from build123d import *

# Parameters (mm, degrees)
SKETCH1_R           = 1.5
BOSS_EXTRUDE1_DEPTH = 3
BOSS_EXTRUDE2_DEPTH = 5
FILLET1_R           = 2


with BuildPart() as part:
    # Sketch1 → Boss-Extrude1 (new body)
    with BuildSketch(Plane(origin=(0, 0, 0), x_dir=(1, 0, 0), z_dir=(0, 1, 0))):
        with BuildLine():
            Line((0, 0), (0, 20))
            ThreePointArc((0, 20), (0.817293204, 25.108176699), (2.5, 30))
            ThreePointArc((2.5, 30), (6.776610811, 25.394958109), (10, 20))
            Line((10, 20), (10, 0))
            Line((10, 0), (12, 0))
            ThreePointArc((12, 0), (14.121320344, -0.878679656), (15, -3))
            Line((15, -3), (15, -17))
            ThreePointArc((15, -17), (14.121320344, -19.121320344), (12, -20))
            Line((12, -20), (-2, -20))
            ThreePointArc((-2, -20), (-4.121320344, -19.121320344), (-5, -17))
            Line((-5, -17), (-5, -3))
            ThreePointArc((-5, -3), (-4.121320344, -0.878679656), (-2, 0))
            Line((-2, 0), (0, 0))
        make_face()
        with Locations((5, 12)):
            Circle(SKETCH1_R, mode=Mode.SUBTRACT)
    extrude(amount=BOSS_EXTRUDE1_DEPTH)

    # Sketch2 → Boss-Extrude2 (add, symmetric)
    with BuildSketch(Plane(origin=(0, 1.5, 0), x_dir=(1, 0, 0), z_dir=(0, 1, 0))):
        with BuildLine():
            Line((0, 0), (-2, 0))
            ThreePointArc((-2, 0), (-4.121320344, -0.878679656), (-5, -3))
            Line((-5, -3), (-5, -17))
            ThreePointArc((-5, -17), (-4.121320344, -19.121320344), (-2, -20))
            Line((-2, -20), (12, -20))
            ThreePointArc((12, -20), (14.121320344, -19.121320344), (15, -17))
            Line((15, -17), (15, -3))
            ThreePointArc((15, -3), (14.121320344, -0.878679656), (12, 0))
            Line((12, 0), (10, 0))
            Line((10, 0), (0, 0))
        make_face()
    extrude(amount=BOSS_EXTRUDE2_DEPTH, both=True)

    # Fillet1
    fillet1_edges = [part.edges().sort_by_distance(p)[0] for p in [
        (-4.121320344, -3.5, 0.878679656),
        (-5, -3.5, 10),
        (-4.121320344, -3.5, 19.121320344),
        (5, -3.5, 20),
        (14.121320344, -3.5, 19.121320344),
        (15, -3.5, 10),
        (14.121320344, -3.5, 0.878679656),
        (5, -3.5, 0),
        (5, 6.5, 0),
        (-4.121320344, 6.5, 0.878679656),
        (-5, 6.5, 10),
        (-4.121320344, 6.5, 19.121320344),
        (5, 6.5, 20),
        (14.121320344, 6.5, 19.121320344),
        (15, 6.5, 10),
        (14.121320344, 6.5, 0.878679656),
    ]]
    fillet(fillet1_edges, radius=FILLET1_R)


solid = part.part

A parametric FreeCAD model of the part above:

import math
import FreeCAD as App
import Part
import Sketcher

V = App.Vector


def edges_at(feature, points):
    """Names of the edges that pass closest to the given points."""
    edges = feature.Shape.Edges
    near = lambda p: min(range(len(edges)), key=lambda i: edges[i].distToShape(Part.Vertex(*p))[0])
    return sorted({f"Edge{near(p) + 1}" for p in points})

doc = App.newDocument("Part")
body = doc.addObject("PartDesign::Body", "Body")

sketch1 = body.newObject("Sketcher::SketchObject", "Sketch")
sketch1.AttachmentSupport = (doc.getObject("XZ_Plane"), [""])
sketch1.MapMode = "FlatFace"
sketch1.addGeometry([
    Part.LineSegment(V(0, -20, 0), V(0, 0, 0)),
    Part.LineSegment(V(0, 0, 0), V(-2, 0, 0)),
    Part.ArcOfCircle(Part.Circle(V(-2, 3, 0), V(0, 0, 1), 3), math.radians(180), math.radians(270)),
    Part.LineSegment(V(-5, 3, 0), V(-5, 17, 0)),
    Part.ArcOfCircle(Part.Circle(V(-2, 17, 0), V(0, 0, 1), 3), math.radians(90), math.radians(180)),
    Part.LineSegment(V(-2, 20, 0), V(12, 20, 0)),
    Part.ArcOfCircle(Part.Circle(V(12, 17, 0), V(0, 0, 1), 3), math.radians(0), math.radians(90)),
    Part.LineSegment(V(15, 17, 0), V(15, 3, 0)),
    Part.ArcOfCircle(Part.Circle(V(12, 3, 0), V(0, 0, 1), 3), math.radians(-90), math.radians(0)),
    Part.LineSegment(V(12, 0, 0), V(10, 0, 0)),
    Part.LineSegment(V(10, 0, 0), V(10, -20, 0)),
    Part.ArcOfCircle(Part.Circle(V(-17.2, -7.4, 0), V(0, 0, 1), 30), math.radians(-49), math.radians(-25)),
    Part.ArcOfCircle(Part.Circle(V(29.9, -17.8, 0), V(0, 0, 1), 30), math.radians(-175.86), math.radians(-156.07)),
    Part.Circle(V(5, -12, 0), V(0, 0, 1), 1.5),
], False)
sketch1.addConstraint([
    Sketcher.Constraint("Coincident", 0, 2, 1, 1),
    Sketcher.Constraint("Tangent", 1, 2, 2, 2),
    Sketcher.Constraint("Tangent", 2, 1, 3, 1),
    Sketcher.Constraint("Tangent", 3, 2, 4, 2),
    Sketcher.Constraint("Tangent", 4, 1, 5, 1),
    Sketcher.Constraint("Tangent", 5, 2, 6, 2),
    Sketcher.Constraint("Tangent", 6, 1, 7, 1),
    Sketcher.Constraint("Tangent", 7, 2, 8, 2),
    Sketcher.Constraint("Tangent", 8, 1, 9, 1),
    Sketcher.Constraint("Coincident", 9, 2, 10, 1),
    Sketcher.Constraint("Coincident", 10, 2, 11, 2),
    Sketcher.Constraint("Coincident", 11, 1, 12, 2),
    Sketcher.Constraint("Coincident", 12, 1, 0, 1),
    Sketcher.Constraint("Vertical", 0),
    Sketcher.Constraint("Horizontal", 1),
    Sketcher.Constraint("Vertical", 3),
    Sketcher.Constraint("Horizontal", 5),
    Sketcher.Constraint("Vertical", 7),
    Sketcher.Constraint("Horizontal", 9),
    Sketcher.Constraint("Vertical", 10),
    Sketcher.Constraint("Coincident", 0, 2, -1, 1),
    Sketcher.Constraint("Equal", 2, 4),
    Sketcher.Constraint("Equal", 4, 6),
    Sketcher.Constraint("Equal", 6, 8),
    Sketcher.Constraint("Equal", 11, 12),
    Sketcher.Constraint("PointOnObject", 8, 1, -1),
    Sketcher.Constraint("Horizontal", 10, 2, 12, 1),
    Sketcher.Constraint("Equal", 1, 9),
    Sketcher.Constraint("Equal", 5, 3),
    Sketcher.Constraint("Diameter", 13, 3.0),
    Sketcher.Constraint("Radius", 2, 3.0),
    Sketcher.Constraint("Radius", 11, 30.0),
    Sketcher.Constraint("DistanceX", 1, 2, 1, 1, 2.0),
    Sketcher.Constraint("DistanceX", 5, 1, 5, 2, 14.0),
    Sketcher.Constraint("DistanceY", 0, 1, 0, 2, 20.0),
    Sketcher.Constraint("DistanceX", -1, 1, 13, 3, 5.0),
    Sketcher.Constraint("DistanceY", 13, 3, -1, 1, 12.0),
    Sketcher.Constraint("DistanceY", 11, 1, -1, 1, 30.0),
    Sketcher.Constraint("DistanceX", -1, 1, 11, 1, 2.5),
])
pad1 = body.newObject("PartDesign::Pad", "Pad")
pad1.Profile = sketch1
pad1.Length = 3
pad1.Reversed = True

sketch2 = body.newObject("Sketcher::SketchObject", "Sketch001")
sketch2.AttachmentSupport = (doc.getObject("XZ_Plane"), [""])
sketch2.MapMode = "FlatFace"
sketch2.AttachmentOffset = App.Placement(V(0, 0, -1.5), App.Rotation())
sketch2.addGeometry([
    Part.ArcOfCircle(Part.Circle(V(-2, 3, 0), V(0, 0, 1), 3), math.radians(180), math.radians(270)),
    Part.LineSegment(V(-5, 3, 0), V(-5, 17, 0)),
    Part.ArcOfCircle(Part.Circle(V(-2, 17, 0), V(0, 0, 1), 3), math.radians(90), math.radians(180)),
    Part.LineSegment(V(-2, 20, 0), V(12, 20, 0)),
    Part.ArcOfCircle(Part.Circle(V(12, 17, 0), V(0, 0, 1), 3), math.radians(0), math.radians(90)),
    Part.LineSegment(V(15, 17, 0), V(15, 3, 0)),
    Part.ArcOfCircle(Part.Circle(V(12, 3, 0), V(0, 0, 1), 3), math.radians(-90), math.radians(0)),
    Part.LineSegment(V(12, 0, 0), V(-2, 0, 0)),
], False)
sketch2.addConstraint([
    Sketcher.Constraint("Tangent", 0, 1, 1, 1),
    Sketcher.Constraint("Tangent", 1, 2, 2, 2),
    Sketcher.Constraint("Tangent", 2, 1, 3, 1),
    Sketcher.Constraint("Tangent", 3, 2, 4, 2),
    Sketcher.Constraint("Tangent", 4, 1, 5, 1),
    Sketcher.Constraint("Tangent", 5, 2, 6, 2),
    Sketcher.Constraint("Tangent", 6, 1, 7, 1),
    Sketcher.Constraint("Tangent", 7, 2, 0, 2),
    Sketcher.Constraint("Vertical", 1),
    Sketcher.Constraint("Horizontal", 3),
    Sketcher.Constraint("Vertical", 5),
    Sketcher.Constraint("Horizontal", 7),
    Sketcher.Constraint("Equal", 0, 2),
    Sketcher.Constraint("Equal", 2, 4),
    Sketcher.Constraint("Equal", 4, 6),
    Sketcher.Constraint("PointOnObject", 6, 1, -1),
    Sketcher.Constraint("Equal", 7, 1),
    Sketcher.Constraint("Radius", 0, 3.0),
    Sketcher.Constraint("DistanceX", 3, 1, 3, 2, 14.0),
    Sketcher.Constraint("DistanceX", 0, 3, -1, 1, 2.0),
])
pad2 = body.newObject("PartDesign::Pad", "Pad001")
pad2.Profile = sketch2
pad2.Length = 10
pad2.Midplane = True
doc.recompute()

fillet = body.newObject("PartDesign::Fillet", "Fillet")
fillet.Base = (pad2, edges_at(pad2, [
    (-4.121, -3.5, 0.879),
    (-5, -3.5, 10),
    (-4.121, -3.5, 19.121),
    (5, -3.5, 20),
    (14.121, -3.5, 19.121),
    (15, -3.5, 10),
    (14.121, -3.5, 0.879),
    (5, -3.5, 0),
    (5, 6.5, 0),
    (-4.121, 6.5, 0.879),
    (-5, 6.5, 10),
    (-4.121, 6.5, 19.121),
    (5, 6.5, 20),
    (14.121, 6.5, 19.121),
    (15, 6.5, 10),
    (14.121, 6.5, 0.879),
]))
fillet.Radius = 2

doc.recompute()
